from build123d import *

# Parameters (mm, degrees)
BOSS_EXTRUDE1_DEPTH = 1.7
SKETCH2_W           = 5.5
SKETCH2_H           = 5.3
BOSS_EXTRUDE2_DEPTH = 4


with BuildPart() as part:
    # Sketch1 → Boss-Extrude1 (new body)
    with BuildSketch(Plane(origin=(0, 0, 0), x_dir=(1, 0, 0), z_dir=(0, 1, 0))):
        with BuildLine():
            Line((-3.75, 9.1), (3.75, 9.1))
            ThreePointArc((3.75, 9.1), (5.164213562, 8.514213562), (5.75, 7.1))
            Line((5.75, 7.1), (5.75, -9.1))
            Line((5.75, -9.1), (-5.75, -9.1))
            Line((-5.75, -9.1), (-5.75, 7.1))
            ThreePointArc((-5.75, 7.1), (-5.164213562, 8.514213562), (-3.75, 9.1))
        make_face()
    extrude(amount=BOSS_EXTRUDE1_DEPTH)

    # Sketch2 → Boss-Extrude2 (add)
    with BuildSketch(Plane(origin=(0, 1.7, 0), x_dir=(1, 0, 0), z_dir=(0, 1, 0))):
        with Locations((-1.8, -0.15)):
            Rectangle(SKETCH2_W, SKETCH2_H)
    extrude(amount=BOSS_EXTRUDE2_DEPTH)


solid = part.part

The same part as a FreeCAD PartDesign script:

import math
import FreeCAD as App
import Part
import Sketcher
from FreeCAD import Vector


def add_polygon(sketch, points):
    """Adds a closed chain of lines whose ends are joined by coincident constraints."""
    first, n = sketch.GeometryCount, len(points)
    for a, b in zip(points, points[1:] + points[:1]):
        sketch.addGeometry(Part.LineSegment(App.Vector(*a, 0), App.Vector(*b, 0)), False)
    for i in range(n):
        sketch.addConstraint(Sketcher.Constraint("Coincident", first + i, 2, first + (i + 1) % n, 1))

doc = App.newDocument("Part")
body = doc.addObject("PartDesign::Body", "Body")

# Sketch on XZ plane
sketch1 = doc.addObject("Sketcher::SketchObject", "Sketch")
body.addObject(sketch1)
sketch1.AttachmentSupport = (doc.XZ_Plane, [""])
sketch1.MapMode = "FlatFace"
sketch1.addGeometry([
    Part.LineSegment(Vector(3.8, -9.1, 0), Vector(-3.8, -9.1, 0)),  # 0
    Part.ArcOfCircle(Part.Circle(Vector(-3.7, -7.1, 0), Vector(0, 0, 1), 2), math.radians(-180), math.radians(-90)),  # 1
    Part.LineSegment(Vector(-5.8, -7.1, 0), Vector(-5.8, 9.1, 0)),  # 2
    Part.LineSegment(Vector(-5.8, 9.1, 0), Vector(5.8, 9.1, 0)),  # 3
    Part.LineSegment(Vector(5.8, 9.1, 0), Vector(5.8, -7.1, 0)),  # 4
    Part.ArcOfCircle(Part.Circle(Vector(3.7, -7.1, 0), Vector(0, 0, 1), 2), math.radians(-90), math.radians(0)),  # 5
], False)
sketch1.addConstraint([
    Sketcher.Constraint("Tangent", 0, 2, 1, 2),
    Sketcher.Constraint("Tangent", 1, 1, 2, 1),
    Sketcher.Constraint("Coincident", 2, 2, 3, 1),
    Sketcher.Constraint("Coincident", 3, 2, 4, 1),
    Sketcher.Constraint("Tangent", 4, 2, 5, 2),
    Sketcher.Constraint("Tangent", 5, 1, 0, 1),
    Sketcher.Constraint("Horizontal", 0),
    Sketcher.Constraint("Vertical", 2),
    Sketcher.Constraint("Horizontal", 3),
    Sketcher.Constraint("Vertical", 4),
    Sketcher.Constraint("Equal", 1, 5),
    Sketcher.Constraint("Radius", 1, 2.0),
    Sketcher.Constraint("DistanceX", 0, 2, 0, 1, 7.5),
    Sketcher.Constraint("DistanceY", 2, 1, 2, 2, 16.2),
    Sketcher.Constraint("DistanceY", 1, 3, -1, 1, 7.1),
    Sketcher.Constraint("DistanceX", 1, 3, -1, 1, 3.75),
])
pad1 = doc.addObject("PartDesign::Pad", "Pad")
body.addObject(pad1)
pad1.Profile = sketch1
pad1.Length = 1.7
pad1.Reversed = True

# Sketch on XZ plane
sketch2 = doc.addObject("Sketcher::SketchObject", "Sketch001")
body.addObject(sketch2)
sketch2.AttachmentSupport = (doc.XZ_Plane, [""])
sketch2.MapMode = "FlatFace"
sketch2.AttachmentOffset = App.Placement(Vector(0, 0, -1.7), App.Rotation())
add_polygon(sketch2, [(-5, -2), (-5, 3), (1, 3), (1, -2)])  # lines 0-3
sketch2.addConstraint([
    Sketcher.Constraint("Vertical", 0),
    Sketcher.Constraint("Horizontal", 1),
    Sketcher.Constraint("Vertical", 2),
    Sketcher.Constraint("Horizontal", 3),
    Sketcher.Constraint("DistanceX", 1, 1, 1, 2, 5.5),
    Sketcher.Constraint("DistanceY", 0, 1, 0, 2, 5.3),
    Sketcher.Constraint("DistanceY", -1, 1, 0, 2, 2.8),
    Sketcher.Constraint("DistanceX", 0, 2, -1, 1, 4.55),
])
pad2 = doc.addObject("PartDesign::Pad", "Pad001")
body.addObject(pad2)
pad2.Profile = sketch2
pad2.Length = 4
pad2.Reversed = True

doc.recompute()
